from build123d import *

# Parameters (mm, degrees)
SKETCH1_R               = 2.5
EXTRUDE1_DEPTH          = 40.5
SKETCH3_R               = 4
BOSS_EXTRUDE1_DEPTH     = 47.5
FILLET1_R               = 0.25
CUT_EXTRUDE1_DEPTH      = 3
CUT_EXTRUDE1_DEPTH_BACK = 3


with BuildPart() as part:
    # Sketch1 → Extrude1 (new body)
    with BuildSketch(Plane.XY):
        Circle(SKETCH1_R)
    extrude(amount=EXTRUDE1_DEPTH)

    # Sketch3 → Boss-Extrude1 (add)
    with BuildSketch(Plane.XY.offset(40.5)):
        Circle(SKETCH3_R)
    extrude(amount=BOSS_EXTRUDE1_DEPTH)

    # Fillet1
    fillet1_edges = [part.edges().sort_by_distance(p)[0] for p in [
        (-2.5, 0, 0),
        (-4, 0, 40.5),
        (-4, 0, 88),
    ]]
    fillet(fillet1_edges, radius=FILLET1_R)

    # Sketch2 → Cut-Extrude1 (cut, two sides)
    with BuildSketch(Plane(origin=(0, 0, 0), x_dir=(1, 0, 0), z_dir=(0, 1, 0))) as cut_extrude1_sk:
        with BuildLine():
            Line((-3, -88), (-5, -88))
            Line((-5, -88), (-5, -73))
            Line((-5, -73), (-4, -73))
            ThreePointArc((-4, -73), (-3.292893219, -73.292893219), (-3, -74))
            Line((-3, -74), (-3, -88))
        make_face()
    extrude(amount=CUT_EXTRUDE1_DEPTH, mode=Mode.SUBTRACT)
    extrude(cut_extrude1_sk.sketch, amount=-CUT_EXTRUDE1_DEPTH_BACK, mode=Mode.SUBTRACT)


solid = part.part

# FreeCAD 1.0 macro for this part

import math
import FreeCAD as App
import Part
import Sketcher
from FreeCAD import Vector
Q = App.Units.Quantity


def edges_at(feature, points):
    """Names of the edges that pass closest to the given points."""
    edges = feature.Shape.Edges
    near = lambda p: min(range(len(edges)), key=lambda i: edges[i].distToShape(Part.Vertex(*p))[0])
    return sorted({f"Edge{near(p) + 1}" for p in points})

doc = App.newDocument("Part")
params = doc.addObject("Spreadsheet::Sheet", "Params")
for row, (alias, value) in enumerate([
    ("sketch1_diameter", "5 mm"),
    ("pad1_length", "40.5 mm"),
    ("sketch2_diameter", "8 mm"),
    ("pad2_length", "47.5 mm"),
    ("fillet_radius", "0.25 mm"),
    ("sketch3_radius", "1 mm"),
    ("sketch3_width", "2 mm"),
    ("sketch3_height", "14 mm"),
], start=1):
    params.set(f"A{row}", alias)
    params.set(f"B{row}", "=" + value)
    params.setAlias(f"B{row}", alias)

body = doc.addObject("PartDesign::Body", "Body")

sketch1 = body.newObject("Sketcher::SketchObject", "Sketch")
sketch1.AttachmentSupport = (doc.getObject("XY_Plane"), [""])
sketch1.MapMode = "FlatFace"
sketch1.addGeometry(Part.Circle(Vector(0, 0, 0), Vector(0, 0, 1), 2.5), False)
sketch1.addConstraint([
    Sketcher.Constraint("Coincident", 0, 3, -1, 1),
    Sketcher.Constraint("Diameter", 0, Q("5 mm")),
])
sketch1.setExpression("Constraints[1]", "Params.sketch1_diameter")
pad1 = body.newObject("PartDesign::Pad", "Pad")
pad1.Profile = sketch1
pad1.setExpression("Length", "Params.pad1_length")

sketch2 = body.newObject("Sketcher::SketchObject", "Sketch001")
sketch2.AttachmentSupport = (doc.getObject("XY_Plane"), [""])
sketch2.MapMode = "FlatFace"
sketch2.AttachmentOffset = App.Placement(Vector(0, 0, 40.5), App.Rotation())
sketch2.addGeometry(Part.Circle(Vector(0, 0, 0), Vector(0, 0, 1), 4), False)
sketch2.addConstraint([
    Sketcher.Constraint("Coincident", 0, 3, -1, 1),
    Sketcher.Constraint("Diameter", 0, Q("8 mm")),
])
sketch2.setExpression("Constraints[1]", "Params.sketch2_diameter")
pad2 = body.newObject("PartDesign::Pad", "Pad001")
pad2.Profile = sketch2
pad2.setExpression("Length", "Params.pad2_length")
doc.recompute()

fillet = body.newObject("PartDesign::Fillet", "Fillet")
fillet.Base = (pad2, edges_at(pad2, [(-2.5, 0, 0), (-4, 0, 40.5), (-4, 0, 88)]))
fillet.setExpression("Radius", "Params.fillet_radius")

sketch3 = body.newObject("Sketcher::SketchObject", "Sketch002")
sketch3.AttachmentSupport = (doc.getObject("XZ_Plane"), [""])
sketch3.MapMode = "FlatFace"
sketch3.addGeometry([
    Part.LineSegment(Vector(-5, 88, 0), Vector(-3, 88, 0)),
    Part.LineSegment(Vector(-3, 88, 0), Vector(-3, 74, 0)),
    Part.ArcOfCircle(Part.Circle(Vector(-4, 74, 0), Vector(0, 0, 1), 1), math.radians(-90), math.radians(0)),
    Part.LineSegment(Vector(-4, 73, 0), Vector(-5, 73, 0)),
    Part.LineSegment(Vector(-5, 73, 0), Vector(-5, 88, 0)),
], False)
sketch3.addConstraint([
    Sketcher.Constraint("Coincident", 0, 2, 1, 1),
    Sketcher.Constraint("Tangent", 1, 2, 2, 2),
    Sketcher.Constraint("Tangent", 2, 1, 3, 1),
    Sketcher.Constraint("Coincident", 3, 2, 4, 1),
    Sketcher.Constraint("Coincident", 4, 2, 0, 1),
    Sketcher.Constraint("Horizontal", 0),
    Sketcher.Constraint("Vertical", 1),
    Sketcher.Constraint("Horizontal", 3),
    Sketcher.Constraint("Vertical", 4),
    Sketcher.Constraint("Radius", 2, Q("1 mm")),
    Sketcher.Constraint("DistanceX", 0, 1, 0, 2, Q("2 mm")),
    Sketcher.Constraint("DistanceY", 1, 2, 1, 1, Q("14 mm")),
    Sketcher.Constraint("DistanceX", 2, 3, -1, 1, Q("4 mm")),
    Sketcher.Constraint("DistanceY", -1, 1, 2, 3, Q("74 mm")),
])
sketch3.setExpression("Constraints[9]", "Params.sketch3_radius")
sketch3.setExpression("Constraints[10]", "Params.sketch3_width")
sketch3.setExpression("Constraints[11]", "Params.sketch3_height")
pocket1 = body.newObject("PartDesign::Pocket", "Pocket")
pocket1.Profile = sketch3
pocket1.Type = "ThroughAll"
pocket1.Midplane = True

doc.recompute()
